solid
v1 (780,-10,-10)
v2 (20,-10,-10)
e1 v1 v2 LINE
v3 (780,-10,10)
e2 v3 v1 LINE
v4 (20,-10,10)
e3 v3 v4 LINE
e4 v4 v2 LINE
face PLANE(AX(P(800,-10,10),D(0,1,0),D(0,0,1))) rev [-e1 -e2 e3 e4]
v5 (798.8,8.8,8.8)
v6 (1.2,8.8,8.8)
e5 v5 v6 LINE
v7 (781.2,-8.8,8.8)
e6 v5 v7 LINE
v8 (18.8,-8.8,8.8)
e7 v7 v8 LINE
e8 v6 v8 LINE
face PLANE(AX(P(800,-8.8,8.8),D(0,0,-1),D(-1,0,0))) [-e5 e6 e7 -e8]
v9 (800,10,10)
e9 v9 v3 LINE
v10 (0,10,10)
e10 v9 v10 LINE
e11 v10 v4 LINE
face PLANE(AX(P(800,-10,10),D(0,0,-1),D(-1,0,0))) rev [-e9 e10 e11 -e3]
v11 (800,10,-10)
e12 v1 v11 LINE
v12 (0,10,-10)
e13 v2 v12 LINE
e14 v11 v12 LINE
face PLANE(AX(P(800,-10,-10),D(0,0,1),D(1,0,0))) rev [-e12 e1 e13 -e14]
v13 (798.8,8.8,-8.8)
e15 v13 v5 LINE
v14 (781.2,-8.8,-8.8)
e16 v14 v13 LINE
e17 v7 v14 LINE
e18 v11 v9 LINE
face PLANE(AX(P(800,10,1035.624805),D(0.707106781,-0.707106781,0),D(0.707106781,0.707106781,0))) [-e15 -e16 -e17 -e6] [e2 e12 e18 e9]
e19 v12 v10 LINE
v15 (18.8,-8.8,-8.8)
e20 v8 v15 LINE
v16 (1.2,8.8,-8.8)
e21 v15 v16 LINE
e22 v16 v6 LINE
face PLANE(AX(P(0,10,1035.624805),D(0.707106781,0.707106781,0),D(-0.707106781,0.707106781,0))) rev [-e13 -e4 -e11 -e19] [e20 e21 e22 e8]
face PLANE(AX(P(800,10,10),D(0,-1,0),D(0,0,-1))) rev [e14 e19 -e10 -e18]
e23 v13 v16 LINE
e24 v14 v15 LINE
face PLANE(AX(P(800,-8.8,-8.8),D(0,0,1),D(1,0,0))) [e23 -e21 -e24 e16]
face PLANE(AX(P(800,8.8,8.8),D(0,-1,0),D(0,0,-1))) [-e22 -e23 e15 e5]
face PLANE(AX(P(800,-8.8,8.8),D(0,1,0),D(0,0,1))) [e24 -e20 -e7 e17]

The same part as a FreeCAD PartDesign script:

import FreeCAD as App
import Part
import Sketcher
Q = App.Units.Quantity


def add_polygon(sketch, points):
    """Adds a closed chain of lines whose ends are joined by coincident constraints."""
    first, n = sketch.GeometryCount, len(points)
    for a, b in zip(points, points[1:] + points[:1]):
        sketch.addGeometry(Part.LineSegment(App.Vector(*a, 0), App.Vector(*b, 0)), False)
    for i in range(n):
        sketch.addConstraint(Sketcher.Constraint("Coincident", first + i, 2, first + (i + 1) % n, 1))

doc = App.newDocument("Part")
body = doc.addObject("PartDesign::Body", "Body")

sketch1 = body.newObject("Sketcher::SketchObject", "Sketch")
sketch1.AttachmentSupport = (doc.getObject("YZ_Plane"), [""])
sketch1.MapMode = "FlatFace"
add_polygon(sketch1, [(10, 10), (-10, 10), (-10, -10), (10, -10)])
add_polygon(sketch1, [(-9, -9), (-9, 9), (9, 9), (9, -9)])
sketch1.addConstraint([
    Sketcher.Constraint("Horizontal", 0),
    Sketcher.Constraint("Vertical", 1),
    Sketcher.Constraint("Horizontal", 2),
    Sketcher.Constraint("Vertical", 3),
    Sketcher.Constraint("Vertical", 4),
    Sketcher.Constraint("Horizontal", 5),
    Sketcher.Constraint("Vertical", 6),
    Sketcher.Constraint("Horizontal", 7),
    Sketcher.Constraint("Symmetric", 0, 2, 2, 2, -1, 1),
    Sketcher.Constraint("Symmetric", 4, 2, 6, 2, -1, 1),
    Sketcher.Constraint("Equal", 2, 1),
    Sketcher.Constraint("Equal", 7, 4),
    Sketcher.Constraint("DistanceX", 0, 2, 0, 1, 20.0),
    Sketcher.Constraint("DistanceX", 5, 1, 5, 2, 17.6),
])
pad1 = body.newObject("PartDesign::Pad", "Pad")
pad1.Profile = sketch1
pad1.Length = 800

sketch2 = body.newObject("Sketcher::SketchObject", "Sketch001")
sketch2.AttachmentSupport = (doc.getObject("XY_Plane"), [""])
sketch2.MapMode = "FlatFace"
sketch2.AttachmentOffset = App.Placement(App.Vector(0, 0, 10), App.Rotation())
add_polygon(sketch2, [(1159, -1149), (-1139, 1149), (-3416, -1129), (-1119, -3426)])
sketch2.addConstraint([
    Sketcher.Constraint("Perpendicular", 0, 1),
    Sketcher.Constraint("Perpendicular", 1, 2),
    Sketcher.Constraint("Perpendicular", 2, 3),
    Sketcher.Constraint("Angle", 0, Q("135 deg")),
    Sketcher.Constraint("DistanceX", 0, 2, 2, 2, 20.0),
    Sketcher.Constraint("DistanceX", 1, 2, 0, 2, 2277.590832),
    Sketcher.Constraint("DistanceX", 0, 2, -1, 1, 1138.795416),
    Sketcher.Constraint("DistanceY", -1, 1, 0, 2, 1148.795416),
])
pocket1 = body.newObject("PartDesign::Pocket", "Pocket")
pocket1.Profile = sketch2
pocket1.Type = "ThroughAll"
pocket1.Midplane = True

sketch3 = body.newObject("Sketcher::SketchObject", "Sketch002")
sketch3.AttachmentSupport = (doc.getObject("XY_Plane"), [""])
sketch3.MapMode = "FlatFace"
sketch3.AttachmentOffset = App.Placement(App.Vector(0, 0, 10), App.Rotation())
add_polygon(sketch3, [(1939, 1149), (-359, -1149), (1919, -3426), (4216, -1129)])
sketch3.addConstraint([
    Sketcher.Constraint("Perpendicular", 0, 1),
    Sketcher.Constraint("Perpendicular", 1, 2),
    Sketcher.Constraint("Perpendicular", 2, 3),
    Sketcher.Constraint("Angle", 0, Q("-135 deg")),
    Sketcher.Constraint("DistanceY", 0, 2, 2, 2, 20.0),
    Sketcher.Constraint("DistanceX", 0, 2, 1, 2, 2277.590832),
    Sketcher.Constraint("DistanceX", 0, 2, -1, 1, 358.795416),
    Sketcher.Constraint("DistanceY", 0, 2, -1, 1, 1148.795416),
])
pocket2 = body.newObject("PartDesign::Pocket", "Pocket001")
pocket2.Profile = sketch3
pocket2.Type = "ThroughAll"
pocket2.Midplane = True

doc.recompute()
